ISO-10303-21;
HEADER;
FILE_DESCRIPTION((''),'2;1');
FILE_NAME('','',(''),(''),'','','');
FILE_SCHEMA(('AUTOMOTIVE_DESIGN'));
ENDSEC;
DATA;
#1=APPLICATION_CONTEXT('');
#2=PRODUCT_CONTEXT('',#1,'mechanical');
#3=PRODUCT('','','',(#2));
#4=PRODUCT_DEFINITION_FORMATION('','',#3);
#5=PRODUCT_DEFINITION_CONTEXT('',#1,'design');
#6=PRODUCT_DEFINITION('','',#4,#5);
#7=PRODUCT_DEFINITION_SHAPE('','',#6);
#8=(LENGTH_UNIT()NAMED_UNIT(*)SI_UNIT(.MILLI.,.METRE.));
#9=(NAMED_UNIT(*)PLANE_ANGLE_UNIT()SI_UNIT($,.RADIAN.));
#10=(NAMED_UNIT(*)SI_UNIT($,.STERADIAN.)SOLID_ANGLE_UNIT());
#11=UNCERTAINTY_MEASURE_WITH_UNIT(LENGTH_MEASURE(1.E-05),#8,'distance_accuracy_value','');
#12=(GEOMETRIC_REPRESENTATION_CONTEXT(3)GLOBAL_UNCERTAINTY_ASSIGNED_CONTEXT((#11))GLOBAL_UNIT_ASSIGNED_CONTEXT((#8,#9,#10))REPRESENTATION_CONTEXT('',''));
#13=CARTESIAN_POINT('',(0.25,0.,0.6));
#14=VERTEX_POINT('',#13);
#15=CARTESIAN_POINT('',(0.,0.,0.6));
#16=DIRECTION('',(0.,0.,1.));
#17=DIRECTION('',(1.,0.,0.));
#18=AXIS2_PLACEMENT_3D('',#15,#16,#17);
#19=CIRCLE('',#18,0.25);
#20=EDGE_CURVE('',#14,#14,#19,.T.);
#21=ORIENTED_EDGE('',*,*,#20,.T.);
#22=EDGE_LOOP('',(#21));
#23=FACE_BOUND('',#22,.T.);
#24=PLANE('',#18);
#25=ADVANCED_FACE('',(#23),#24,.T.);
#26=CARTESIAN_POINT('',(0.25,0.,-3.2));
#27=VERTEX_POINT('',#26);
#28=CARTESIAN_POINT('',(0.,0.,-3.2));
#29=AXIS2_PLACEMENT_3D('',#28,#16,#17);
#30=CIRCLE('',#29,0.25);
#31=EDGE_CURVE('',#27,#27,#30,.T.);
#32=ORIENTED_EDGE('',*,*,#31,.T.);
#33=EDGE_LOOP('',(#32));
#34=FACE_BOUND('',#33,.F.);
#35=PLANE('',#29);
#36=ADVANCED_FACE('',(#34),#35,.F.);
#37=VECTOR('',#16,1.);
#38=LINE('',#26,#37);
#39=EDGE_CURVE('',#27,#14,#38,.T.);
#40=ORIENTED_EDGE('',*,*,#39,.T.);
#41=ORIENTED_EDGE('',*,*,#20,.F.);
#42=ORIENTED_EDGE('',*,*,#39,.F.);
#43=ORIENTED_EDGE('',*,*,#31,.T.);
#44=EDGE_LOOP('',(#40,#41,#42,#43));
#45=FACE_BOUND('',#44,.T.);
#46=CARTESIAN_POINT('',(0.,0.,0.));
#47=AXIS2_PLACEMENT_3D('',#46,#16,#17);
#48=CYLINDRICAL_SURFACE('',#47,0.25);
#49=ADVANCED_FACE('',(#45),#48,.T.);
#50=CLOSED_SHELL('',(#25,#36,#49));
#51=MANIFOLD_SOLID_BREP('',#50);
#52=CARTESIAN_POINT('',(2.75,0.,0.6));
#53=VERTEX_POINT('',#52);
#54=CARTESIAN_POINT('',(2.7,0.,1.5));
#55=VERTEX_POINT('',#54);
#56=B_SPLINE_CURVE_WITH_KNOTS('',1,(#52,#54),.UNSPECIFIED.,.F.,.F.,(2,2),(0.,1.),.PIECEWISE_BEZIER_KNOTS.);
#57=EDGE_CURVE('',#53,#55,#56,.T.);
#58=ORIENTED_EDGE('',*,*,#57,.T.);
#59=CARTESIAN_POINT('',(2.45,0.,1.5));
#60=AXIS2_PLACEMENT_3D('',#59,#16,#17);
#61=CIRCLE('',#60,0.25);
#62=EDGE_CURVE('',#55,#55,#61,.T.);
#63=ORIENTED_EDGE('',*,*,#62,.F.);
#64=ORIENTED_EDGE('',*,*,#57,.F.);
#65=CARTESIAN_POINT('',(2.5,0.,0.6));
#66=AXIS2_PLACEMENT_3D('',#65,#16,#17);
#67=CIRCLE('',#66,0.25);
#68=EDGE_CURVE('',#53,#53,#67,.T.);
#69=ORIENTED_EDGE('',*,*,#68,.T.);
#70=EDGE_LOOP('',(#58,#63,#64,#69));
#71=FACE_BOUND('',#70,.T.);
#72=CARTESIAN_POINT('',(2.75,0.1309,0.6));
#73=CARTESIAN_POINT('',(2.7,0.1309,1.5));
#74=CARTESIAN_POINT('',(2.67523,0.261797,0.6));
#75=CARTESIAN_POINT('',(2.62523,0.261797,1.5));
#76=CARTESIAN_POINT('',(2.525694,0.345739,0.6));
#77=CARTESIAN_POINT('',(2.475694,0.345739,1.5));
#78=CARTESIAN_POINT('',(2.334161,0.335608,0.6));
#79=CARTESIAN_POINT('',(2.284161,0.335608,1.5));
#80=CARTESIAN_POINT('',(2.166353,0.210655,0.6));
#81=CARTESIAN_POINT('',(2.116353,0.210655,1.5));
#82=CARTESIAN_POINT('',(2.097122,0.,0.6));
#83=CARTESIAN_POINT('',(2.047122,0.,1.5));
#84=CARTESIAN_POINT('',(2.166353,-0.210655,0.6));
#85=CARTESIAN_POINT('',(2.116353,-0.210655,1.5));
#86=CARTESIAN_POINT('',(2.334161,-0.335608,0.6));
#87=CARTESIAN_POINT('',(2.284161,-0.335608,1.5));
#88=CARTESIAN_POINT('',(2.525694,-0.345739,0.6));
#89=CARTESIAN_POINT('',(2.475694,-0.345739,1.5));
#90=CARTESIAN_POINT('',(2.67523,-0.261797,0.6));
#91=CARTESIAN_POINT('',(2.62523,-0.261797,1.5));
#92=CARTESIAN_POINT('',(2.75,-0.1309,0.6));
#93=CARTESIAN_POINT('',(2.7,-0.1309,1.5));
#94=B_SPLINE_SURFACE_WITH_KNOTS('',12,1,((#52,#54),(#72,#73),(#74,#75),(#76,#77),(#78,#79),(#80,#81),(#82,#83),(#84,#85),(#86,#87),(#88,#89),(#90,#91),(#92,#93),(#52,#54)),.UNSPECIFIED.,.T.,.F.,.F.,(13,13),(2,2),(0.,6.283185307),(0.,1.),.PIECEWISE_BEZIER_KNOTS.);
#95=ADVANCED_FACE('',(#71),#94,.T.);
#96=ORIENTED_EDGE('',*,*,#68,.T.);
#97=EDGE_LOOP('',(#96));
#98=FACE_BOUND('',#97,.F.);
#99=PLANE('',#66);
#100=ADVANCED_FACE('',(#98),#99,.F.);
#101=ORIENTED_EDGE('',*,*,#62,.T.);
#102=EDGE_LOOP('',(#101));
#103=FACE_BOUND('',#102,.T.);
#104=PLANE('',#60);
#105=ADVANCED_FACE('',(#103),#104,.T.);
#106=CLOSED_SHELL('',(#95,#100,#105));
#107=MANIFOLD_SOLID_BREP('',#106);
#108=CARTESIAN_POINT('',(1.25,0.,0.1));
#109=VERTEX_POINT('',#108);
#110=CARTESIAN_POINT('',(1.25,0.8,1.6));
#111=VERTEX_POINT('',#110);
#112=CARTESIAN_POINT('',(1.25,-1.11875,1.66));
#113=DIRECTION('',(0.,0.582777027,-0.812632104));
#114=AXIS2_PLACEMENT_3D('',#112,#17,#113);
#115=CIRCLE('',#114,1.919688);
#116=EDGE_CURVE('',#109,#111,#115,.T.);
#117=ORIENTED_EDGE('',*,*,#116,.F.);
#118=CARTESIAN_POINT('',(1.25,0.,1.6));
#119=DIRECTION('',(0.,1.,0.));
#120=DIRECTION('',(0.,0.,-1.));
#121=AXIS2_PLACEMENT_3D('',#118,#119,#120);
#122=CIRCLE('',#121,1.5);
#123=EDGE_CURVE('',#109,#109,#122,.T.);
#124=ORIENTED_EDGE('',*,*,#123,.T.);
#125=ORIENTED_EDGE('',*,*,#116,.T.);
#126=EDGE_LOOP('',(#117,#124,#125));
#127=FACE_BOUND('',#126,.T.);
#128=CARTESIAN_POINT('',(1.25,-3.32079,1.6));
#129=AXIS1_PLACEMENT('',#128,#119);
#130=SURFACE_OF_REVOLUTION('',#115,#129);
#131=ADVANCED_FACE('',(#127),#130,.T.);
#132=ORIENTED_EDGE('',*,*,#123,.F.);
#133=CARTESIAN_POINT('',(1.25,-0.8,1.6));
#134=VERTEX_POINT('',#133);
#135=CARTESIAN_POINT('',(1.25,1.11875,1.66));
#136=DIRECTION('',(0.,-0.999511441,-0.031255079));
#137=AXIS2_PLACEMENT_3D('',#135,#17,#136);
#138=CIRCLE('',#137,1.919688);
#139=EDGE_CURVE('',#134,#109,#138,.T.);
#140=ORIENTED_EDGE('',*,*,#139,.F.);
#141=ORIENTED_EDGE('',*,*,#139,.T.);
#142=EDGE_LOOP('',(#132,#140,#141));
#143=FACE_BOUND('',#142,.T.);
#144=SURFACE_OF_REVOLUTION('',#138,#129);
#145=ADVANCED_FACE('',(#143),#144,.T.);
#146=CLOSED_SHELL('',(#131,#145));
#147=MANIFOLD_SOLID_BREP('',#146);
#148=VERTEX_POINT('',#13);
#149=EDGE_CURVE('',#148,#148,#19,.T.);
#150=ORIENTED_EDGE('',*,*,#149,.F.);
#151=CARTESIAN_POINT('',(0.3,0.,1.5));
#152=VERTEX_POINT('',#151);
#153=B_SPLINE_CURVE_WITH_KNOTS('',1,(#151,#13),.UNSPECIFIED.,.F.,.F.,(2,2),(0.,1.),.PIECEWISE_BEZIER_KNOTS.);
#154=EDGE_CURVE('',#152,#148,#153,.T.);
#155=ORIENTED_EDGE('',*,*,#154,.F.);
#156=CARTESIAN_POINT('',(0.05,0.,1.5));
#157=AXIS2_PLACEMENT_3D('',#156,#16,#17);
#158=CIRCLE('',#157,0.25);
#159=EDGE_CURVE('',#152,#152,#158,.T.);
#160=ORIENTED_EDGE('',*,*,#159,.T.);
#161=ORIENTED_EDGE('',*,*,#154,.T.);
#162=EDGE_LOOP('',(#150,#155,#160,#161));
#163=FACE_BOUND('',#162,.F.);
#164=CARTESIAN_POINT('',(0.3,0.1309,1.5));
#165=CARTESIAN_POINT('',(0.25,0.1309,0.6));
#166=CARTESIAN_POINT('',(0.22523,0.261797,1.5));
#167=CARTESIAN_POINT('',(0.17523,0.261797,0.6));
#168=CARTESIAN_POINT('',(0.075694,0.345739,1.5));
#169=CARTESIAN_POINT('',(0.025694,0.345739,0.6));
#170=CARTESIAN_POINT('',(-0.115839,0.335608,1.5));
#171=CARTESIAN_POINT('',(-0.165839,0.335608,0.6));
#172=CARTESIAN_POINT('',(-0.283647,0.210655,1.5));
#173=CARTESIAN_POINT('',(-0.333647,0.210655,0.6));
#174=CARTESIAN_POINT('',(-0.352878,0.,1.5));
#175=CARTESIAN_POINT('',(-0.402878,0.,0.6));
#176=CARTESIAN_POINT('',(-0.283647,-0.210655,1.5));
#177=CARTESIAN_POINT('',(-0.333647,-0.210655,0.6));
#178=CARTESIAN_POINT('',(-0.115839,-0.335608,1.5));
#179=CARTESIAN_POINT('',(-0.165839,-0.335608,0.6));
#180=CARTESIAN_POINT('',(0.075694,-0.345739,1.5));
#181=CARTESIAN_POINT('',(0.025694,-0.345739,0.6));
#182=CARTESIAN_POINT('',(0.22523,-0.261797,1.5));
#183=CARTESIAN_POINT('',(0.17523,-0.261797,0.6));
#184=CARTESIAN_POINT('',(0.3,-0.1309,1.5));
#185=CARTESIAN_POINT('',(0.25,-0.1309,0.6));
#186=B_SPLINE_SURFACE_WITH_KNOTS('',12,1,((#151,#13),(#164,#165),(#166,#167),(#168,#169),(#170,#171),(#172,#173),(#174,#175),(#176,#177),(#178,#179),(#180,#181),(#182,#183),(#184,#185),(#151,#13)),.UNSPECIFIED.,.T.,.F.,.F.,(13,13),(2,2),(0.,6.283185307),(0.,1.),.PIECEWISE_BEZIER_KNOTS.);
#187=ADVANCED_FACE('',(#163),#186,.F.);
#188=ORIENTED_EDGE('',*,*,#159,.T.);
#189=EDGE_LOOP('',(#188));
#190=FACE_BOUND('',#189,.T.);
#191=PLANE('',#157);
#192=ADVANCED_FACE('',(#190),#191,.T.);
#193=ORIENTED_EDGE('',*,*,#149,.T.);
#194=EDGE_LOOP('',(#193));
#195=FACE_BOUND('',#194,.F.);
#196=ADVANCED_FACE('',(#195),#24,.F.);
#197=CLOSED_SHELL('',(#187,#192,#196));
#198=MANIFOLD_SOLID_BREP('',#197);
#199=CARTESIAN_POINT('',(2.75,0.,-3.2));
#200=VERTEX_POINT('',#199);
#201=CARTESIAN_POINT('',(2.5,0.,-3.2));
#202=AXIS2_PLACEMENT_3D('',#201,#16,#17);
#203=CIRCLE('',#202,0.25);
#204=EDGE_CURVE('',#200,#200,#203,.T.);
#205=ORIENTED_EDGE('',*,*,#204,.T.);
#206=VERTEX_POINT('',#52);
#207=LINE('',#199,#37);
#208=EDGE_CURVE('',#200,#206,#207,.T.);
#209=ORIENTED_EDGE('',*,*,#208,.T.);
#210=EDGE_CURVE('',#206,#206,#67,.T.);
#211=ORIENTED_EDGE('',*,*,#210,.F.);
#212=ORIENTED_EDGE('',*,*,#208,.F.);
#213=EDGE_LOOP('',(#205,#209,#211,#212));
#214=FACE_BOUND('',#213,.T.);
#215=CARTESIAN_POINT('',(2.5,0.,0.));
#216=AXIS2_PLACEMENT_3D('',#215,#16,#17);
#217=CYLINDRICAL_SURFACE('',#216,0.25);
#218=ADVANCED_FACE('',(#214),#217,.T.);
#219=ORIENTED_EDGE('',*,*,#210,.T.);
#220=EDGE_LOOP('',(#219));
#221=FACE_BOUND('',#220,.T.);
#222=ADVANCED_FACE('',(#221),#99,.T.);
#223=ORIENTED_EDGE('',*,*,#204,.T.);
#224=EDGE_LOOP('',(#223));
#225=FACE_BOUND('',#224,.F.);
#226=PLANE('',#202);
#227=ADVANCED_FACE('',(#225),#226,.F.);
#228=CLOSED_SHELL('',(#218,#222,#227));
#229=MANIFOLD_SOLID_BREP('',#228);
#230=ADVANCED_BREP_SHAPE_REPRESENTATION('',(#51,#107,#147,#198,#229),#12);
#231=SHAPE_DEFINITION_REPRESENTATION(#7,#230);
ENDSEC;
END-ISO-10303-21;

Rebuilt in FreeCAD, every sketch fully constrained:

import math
import FreeCAD as App
import Part
import Sketcher
from FreeCAD import Vector
Q = App.Units.Quantity

doc = App.newDocument("Part")
body = doc.addObject("PartDesign::Body", "Body")
body.AllowCompound = True

# Sketch on XY plane
sketch1 = body.newObject("Sketcher::SketchObject", "Sketch")
sketch1.AttachmentSupport = (doc.getObject("XY_Plane"), [""])
sketch1.MapMode = "FlatFace"
sketch1.addGeometry([
    Part.Circle(Vector(0, 0, 0), Vector(0, 0, 1), 0.25),
    Part.Circle(Vector(2.5, 0, 0), Vector(0, 0, 1), 0.25),
], False)
sketch1.addConstraint([
    Sketcher.Constraint("Coincident", 0, 3, -1, 1),
    Sketcher.Constraint("Equal", 0, 1),
    Sketcher.Constraint("PointOnObject", 1, 3, -1),
    Sketcher.Constraint("Diameter", 0, Q("0.5 mm")),
    Sketcher.Constraint("DistanceX", -1, 1, 1, 3, Q("2.5 mm")),
])
pad1 = body.newObject("PartDesign::Pad", "Pad")
pad1.Profile = sketch1
pad1.Type = "TwoLengths"
pad1.Length = 0.6
pad1.Length2 = 3.2
body2 = doc.addObject("PartDesign::Body", "Body001")

# Sketch on YZ plane
sketch2 = body2.newObject("Sketcher::SketchObject", "Sketch001")
sketch2.AttachmentSupport = (doc.getObject("YZ_Plane001"), [""])
sketch2.MapMode = "FlatFace"
sketch2.AttachmentOffset = App.Placement(Vector(0, 0, 1.25), App.Rotation())
sketch2.addGeometry([
    Part.LineSegment(Vector(0.8, 1.6, 0), Vector(-0.8, 1.6, 0)),
    Part.ArcOfCircle(Part.Circle(Vector(1.1, 1.7, 0), Vector(0, 0, 1), 1.9), math.radians(-178), math.radians(-126)),
    Part.ArcOfCircle(Part.Circle(Vector(-1.1, 1.7, 0), Vector(0, 0, 1), 1.9), math.radians(-54), math.radians(-2)),
], False)
sketch2.addGeometry(Part.LineSegment(Vector(-1.1, 1.6, 0), Vector(1.1, 1.6, 0)), True)  # axis
sketch2.addConstraint([
    Sketcher.Constraint("Coincident", 0, 2, 1, 1),
    Sketcher.Constraint("Coincident", 1, 2, 2, 1),
    Sketcher.Constraint("Coincident", 2, 2, 0, 1),
    Sketcher.Constraint("Horizontal", 0),
    Sketcher.Constraint("Horizontal", 3),
    Sketcher.Constraint("Equal", 1, 2),
    Sketcher.Constraint("Symmetric", 1, 3, 2, 3, -2),
    Sketcher.Constraint("Horizontal", 2, 2, 3, 1),
    Sketcher.Constraint("Vertical", 2, 3, 3, 1),
    Sketcher.Constraint("Vertical", 1, 3, 3, 2),
    Sketcher.Constraint("DistanceX", 0, 2, 0, 1, Q("1.6 mm")),
    Sketcher.Constraint("DistanceY", -1, 1, 0, 2, Q("1.6 mm")),
    Sketcher.Constraint("DistanceY", -1, 1, 1, 2, Q("0.1 mm")),
    Sketcher.Constraint("DistanceY", -1, 1, 1, 3, Q("1.66 mm")),
])
revolution = body2.newObject("PartDesign::Revolution", "Revolution")
revolution.Profile = sketch2
revolution.ReferenceAxis = (sketch2, ["Axis0"])
revolution.Angle = 360
body3 = doc.addObject("PartDesign::Body", "Body002")

# Sketch on XY plane
sketch3 = body3.newObject("Sketcher::SketchObject", "Sketch002")
sketch3.AttachmentSupport = (doc.getObject("XY_Plane002"), [""])
sketch3.MapMode = "FlatFace"
sketch3.AttachmentOffset = App.Placement(Vector(0, 0, 1.5), App.Rotation())
sketch3.addGeometry(Part.Circle(Vector(0.05, 0, 0), Vector(0, 0, 1), 0.25), False)
sketch3.addConstraint([
    Sketcher.Constraint("PointOnObject", 0, 3, -1),
    Sketcher.Constraint("Diameter", 0, Q("0.5 mm")),
    Sketcher.Constraint("DistanceX", -1, 1, 0, 3, Q("0.05 mm")),
])

# Sketch on XY plane
sketch4 = body3.newObject("Sketcher::SketchObject", "Sketch003")
sketch4.AttachmentSupport = (doc.getObject("XY_Plane002"), [""])
sketch4.MapMode = "FlatFace"
sketch4.AttachmentOffset = App.Placement(Vector(0, 0, 0.6), App.Rotation())
sketch4.addGeometry(Part.Circle(Vector(0, 0, 0), Vector(0, 0, 1), 0.25), False)
sketch4.addConstraint([
    Sketcher.Constraint("Coincident", 0, 3, -1, 1),
    Sketcher.Constraint("Diameter", 0, Q("0.5 mm")),
])

additiveloft = body3.newObject("PartDesign::AdditiveLoft", "AdditiveLoft")
additiveloft.Profile = sketch3
additiveloft.Sections = [sketch4]
body4 = doc.addObject("PartDesign::Body", "Body003")

# Sketch on XY plane
sketch5 = body4.newObject("Sketcher::SketchObject", "Sketch004")
sketch5.AttachmentSupport = (doc.getObject("XY_Plane003"), [""])
sketch5.MapMode = "FlatFace"
sketch5.AttachmentOffset = App.Placement(Vector(0, 0, 0.6), App.Rotation())
sketch5.addGeometry(Part.Circle(Vector(2.5, 0, 0), Vector(0, 0, 1), 0.25), False)
sketch5.addConstraint([
    Sketcher.Constraint("PointOnObject", 0, 3, -1),
    Sketcher.Constraint("Diameter", 0, Q("0.5 mm")),
    Sketcher.Constraint("DistanceX", -1, 1, 0, 3, Q("2.5 mm")),
])

# Sketch on XY plane
sketch6 = body4.newObject("Sketcher::SketchObject", "Sketch005")
sketch6.AttachmentSupport = (doc.getObject("XY_Plane003"), [""])
sketch6.MapMode = "FlatFace"
sketch6.AttachmentOffset = App.Placement(Vector(0, 0, 1.5), App.Rotation())
sketch6.addGeometry(Part.Circle(Vector(2.45, 0, 0), Vector(0, 0, 1), 0.25), False)
sketch6.addConstraint([
    Sketcher.Constraint("PointOnObject", 0, 3, -1),
    Sketcher.Constraint("Diameter", 0, Q("0.5 mm")),
    Sketcher.Constraint("DistanceX", -1, 1, 0, 3, Q("2.45 mm")),
])

additiveloft2 = body4.newObject("PartDesign::AdditiveLoft", "AdditiveLoft001")
additiveloft2.Profile = sketch5
additiveloft2.Sections = [sketch6]

doc.recompute()
